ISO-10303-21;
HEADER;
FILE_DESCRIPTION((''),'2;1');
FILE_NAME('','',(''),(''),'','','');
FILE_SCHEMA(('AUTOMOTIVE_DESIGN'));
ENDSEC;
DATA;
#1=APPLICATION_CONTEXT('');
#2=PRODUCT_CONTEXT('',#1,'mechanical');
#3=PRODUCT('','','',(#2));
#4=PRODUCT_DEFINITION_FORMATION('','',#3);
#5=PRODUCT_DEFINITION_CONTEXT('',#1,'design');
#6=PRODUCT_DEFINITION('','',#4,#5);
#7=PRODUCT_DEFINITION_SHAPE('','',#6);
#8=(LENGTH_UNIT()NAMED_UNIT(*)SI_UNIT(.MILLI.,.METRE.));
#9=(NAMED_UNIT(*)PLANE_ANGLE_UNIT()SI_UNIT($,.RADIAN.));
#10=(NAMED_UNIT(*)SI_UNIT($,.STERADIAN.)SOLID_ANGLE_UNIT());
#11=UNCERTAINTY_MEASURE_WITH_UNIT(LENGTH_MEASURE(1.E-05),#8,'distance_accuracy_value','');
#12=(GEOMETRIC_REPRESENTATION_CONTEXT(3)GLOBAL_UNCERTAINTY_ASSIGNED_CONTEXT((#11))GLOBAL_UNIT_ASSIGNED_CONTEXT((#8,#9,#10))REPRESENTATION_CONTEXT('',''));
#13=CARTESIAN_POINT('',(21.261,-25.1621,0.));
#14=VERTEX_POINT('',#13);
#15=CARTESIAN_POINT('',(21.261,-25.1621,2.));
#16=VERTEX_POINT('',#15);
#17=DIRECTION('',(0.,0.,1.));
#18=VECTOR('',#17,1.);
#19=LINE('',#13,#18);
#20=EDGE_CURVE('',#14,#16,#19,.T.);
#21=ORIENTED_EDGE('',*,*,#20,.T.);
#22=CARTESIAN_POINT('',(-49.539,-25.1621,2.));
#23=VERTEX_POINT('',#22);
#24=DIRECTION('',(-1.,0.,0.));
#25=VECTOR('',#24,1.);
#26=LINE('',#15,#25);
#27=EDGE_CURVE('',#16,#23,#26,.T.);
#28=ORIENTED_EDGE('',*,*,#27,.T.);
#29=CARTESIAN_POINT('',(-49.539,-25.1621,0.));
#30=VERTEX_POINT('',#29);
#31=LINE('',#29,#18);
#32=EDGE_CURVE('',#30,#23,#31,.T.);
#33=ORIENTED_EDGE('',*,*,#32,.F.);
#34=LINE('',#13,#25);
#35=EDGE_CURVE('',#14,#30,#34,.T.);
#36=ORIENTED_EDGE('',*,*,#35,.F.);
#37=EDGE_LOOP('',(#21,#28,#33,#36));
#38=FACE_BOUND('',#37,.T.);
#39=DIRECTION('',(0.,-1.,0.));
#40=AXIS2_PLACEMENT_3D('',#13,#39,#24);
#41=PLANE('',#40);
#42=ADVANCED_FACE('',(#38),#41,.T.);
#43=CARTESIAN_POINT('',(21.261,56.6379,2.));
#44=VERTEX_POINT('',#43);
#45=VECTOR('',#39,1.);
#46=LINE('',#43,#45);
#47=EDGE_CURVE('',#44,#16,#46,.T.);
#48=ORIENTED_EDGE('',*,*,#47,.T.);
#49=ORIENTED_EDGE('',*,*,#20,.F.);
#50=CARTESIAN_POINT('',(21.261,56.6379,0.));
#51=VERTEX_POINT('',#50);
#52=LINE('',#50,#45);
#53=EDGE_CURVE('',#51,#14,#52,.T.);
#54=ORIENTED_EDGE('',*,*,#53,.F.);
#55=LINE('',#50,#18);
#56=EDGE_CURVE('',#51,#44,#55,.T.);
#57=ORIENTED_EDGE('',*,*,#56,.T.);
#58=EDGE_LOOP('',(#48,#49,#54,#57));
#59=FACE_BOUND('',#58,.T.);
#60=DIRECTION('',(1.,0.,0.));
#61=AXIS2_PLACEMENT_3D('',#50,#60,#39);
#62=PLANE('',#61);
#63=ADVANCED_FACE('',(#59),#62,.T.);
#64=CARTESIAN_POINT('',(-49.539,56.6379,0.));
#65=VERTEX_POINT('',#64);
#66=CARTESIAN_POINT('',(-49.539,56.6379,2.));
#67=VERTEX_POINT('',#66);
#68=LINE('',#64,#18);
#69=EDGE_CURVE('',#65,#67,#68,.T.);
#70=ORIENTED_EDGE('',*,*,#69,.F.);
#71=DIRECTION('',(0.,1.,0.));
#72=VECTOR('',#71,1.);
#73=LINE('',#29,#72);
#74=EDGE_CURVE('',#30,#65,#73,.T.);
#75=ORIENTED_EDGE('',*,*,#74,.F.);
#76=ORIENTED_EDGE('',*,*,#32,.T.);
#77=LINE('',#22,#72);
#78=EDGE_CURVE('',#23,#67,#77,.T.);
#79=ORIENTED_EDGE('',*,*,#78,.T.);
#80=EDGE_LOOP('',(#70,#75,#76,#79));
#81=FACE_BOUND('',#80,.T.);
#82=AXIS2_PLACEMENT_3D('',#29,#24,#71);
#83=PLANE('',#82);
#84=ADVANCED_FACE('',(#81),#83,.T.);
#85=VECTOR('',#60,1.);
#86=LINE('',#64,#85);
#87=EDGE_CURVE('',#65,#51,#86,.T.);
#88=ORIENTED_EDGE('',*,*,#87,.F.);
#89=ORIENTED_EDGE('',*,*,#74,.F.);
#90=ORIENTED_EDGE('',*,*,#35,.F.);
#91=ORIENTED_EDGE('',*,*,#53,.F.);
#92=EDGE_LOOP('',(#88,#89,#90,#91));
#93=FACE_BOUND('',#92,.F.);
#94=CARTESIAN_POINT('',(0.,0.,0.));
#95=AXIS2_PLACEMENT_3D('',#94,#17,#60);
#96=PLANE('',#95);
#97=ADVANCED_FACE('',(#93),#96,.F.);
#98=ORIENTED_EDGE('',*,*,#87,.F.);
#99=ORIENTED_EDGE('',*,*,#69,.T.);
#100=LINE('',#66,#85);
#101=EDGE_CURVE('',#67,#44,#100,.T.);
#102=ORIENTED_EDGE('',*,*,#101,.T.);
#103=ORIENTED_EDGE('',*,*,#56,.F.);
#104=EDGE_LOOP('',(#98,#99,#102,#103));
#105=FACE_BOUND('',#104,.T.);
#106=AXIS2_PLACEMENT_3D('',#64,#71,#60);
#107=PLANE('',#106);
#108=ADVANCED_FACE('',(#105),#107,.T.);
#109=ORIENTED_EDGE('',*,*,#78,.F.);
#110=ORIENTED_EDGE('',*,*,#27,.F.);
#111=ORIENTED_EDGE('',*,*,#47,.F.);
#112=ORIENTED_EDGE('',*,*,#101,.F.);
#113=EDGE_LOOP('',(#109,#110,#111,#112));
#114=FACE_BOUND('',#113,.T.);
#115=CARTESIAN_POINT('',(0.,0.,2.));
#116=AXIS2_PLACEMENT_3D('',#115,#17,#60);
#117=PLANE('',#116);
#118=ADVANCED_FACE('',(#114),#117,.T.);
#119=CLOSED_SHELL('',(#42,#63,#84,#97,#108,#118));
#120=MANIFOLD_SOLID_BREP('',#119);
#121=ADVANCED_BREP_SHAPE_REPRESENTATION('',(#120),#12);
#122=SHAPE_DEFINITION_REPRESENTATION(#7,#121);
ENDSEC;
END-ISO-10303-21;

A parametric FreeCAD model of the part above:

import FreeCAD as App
import Part
import Sketcher
Q = App.Units.Quantity

doc = App.newDocument("Part")
body = doc.addObject("PartDesign::Body", "Body")

# Sketch on XY plane
sketch1 = body.newObject("Sketcher::SketchObject", "Sketch")
sketch1.AttachmentSupport = (doc.getObject("XY_Plane"), [""])
sketch1.MapMode = "FlatFace"
sketch1.addGeometry([
    Part.LineSegment(App.Vector(21, 57, 0), App.Vector(-50, 57, 0)),
    Part.LineSegment(App.Vector(-50, 57, 0), App.Vector(-50, -25, 0)),
    Part.LineSegment(App.Vector(-50, -25, 0), App.Vector(21, -25, 0)),
    Part.LineSegment(App.Vector(21, -25, 0), App.Vector(21, 57, 0)),
], False)
sketch1.addConstraint([
    Sketcher.Constraint("Coincident", 0, 2, 1, 1),
    Sketcher.Constraint("Coincident", 1, 2, 2, 1),
    Sketcher.Constraint("Coincident", 2, 2, 3, 1),
    Sketcher.Constraint("Coincident", 3, 2, 0, 1),
    Sketcher.Constraint("Horizontal", 0),
    Sketcher.Constraint("Vertical", 1),
    Sketcher.Constraint("Horizontal", 2),
    Sketcher.Constraint("Vertical", 3),
    Sketcher.Constraint("DistanceX", 0, 2, 0, 1, Q("70.8 mm")),
    Sketcher.Constraint("DistanceY", 1, 2, 1, 1, Q("81.8 mm")),
    Sketcher.Constraint("DistanceX", 0, 2, -1, 1, Q("49.539 mm")),
    Sketcher.Constraint("DistanceY", -1, 1, 0, 2, Q("56.638 mm")),
])
pad1 = body.newObject("PartDesign::Pad", "Pad")
pad1.Profile = sketch1
pad1.Length = 2

doc.recompute()
